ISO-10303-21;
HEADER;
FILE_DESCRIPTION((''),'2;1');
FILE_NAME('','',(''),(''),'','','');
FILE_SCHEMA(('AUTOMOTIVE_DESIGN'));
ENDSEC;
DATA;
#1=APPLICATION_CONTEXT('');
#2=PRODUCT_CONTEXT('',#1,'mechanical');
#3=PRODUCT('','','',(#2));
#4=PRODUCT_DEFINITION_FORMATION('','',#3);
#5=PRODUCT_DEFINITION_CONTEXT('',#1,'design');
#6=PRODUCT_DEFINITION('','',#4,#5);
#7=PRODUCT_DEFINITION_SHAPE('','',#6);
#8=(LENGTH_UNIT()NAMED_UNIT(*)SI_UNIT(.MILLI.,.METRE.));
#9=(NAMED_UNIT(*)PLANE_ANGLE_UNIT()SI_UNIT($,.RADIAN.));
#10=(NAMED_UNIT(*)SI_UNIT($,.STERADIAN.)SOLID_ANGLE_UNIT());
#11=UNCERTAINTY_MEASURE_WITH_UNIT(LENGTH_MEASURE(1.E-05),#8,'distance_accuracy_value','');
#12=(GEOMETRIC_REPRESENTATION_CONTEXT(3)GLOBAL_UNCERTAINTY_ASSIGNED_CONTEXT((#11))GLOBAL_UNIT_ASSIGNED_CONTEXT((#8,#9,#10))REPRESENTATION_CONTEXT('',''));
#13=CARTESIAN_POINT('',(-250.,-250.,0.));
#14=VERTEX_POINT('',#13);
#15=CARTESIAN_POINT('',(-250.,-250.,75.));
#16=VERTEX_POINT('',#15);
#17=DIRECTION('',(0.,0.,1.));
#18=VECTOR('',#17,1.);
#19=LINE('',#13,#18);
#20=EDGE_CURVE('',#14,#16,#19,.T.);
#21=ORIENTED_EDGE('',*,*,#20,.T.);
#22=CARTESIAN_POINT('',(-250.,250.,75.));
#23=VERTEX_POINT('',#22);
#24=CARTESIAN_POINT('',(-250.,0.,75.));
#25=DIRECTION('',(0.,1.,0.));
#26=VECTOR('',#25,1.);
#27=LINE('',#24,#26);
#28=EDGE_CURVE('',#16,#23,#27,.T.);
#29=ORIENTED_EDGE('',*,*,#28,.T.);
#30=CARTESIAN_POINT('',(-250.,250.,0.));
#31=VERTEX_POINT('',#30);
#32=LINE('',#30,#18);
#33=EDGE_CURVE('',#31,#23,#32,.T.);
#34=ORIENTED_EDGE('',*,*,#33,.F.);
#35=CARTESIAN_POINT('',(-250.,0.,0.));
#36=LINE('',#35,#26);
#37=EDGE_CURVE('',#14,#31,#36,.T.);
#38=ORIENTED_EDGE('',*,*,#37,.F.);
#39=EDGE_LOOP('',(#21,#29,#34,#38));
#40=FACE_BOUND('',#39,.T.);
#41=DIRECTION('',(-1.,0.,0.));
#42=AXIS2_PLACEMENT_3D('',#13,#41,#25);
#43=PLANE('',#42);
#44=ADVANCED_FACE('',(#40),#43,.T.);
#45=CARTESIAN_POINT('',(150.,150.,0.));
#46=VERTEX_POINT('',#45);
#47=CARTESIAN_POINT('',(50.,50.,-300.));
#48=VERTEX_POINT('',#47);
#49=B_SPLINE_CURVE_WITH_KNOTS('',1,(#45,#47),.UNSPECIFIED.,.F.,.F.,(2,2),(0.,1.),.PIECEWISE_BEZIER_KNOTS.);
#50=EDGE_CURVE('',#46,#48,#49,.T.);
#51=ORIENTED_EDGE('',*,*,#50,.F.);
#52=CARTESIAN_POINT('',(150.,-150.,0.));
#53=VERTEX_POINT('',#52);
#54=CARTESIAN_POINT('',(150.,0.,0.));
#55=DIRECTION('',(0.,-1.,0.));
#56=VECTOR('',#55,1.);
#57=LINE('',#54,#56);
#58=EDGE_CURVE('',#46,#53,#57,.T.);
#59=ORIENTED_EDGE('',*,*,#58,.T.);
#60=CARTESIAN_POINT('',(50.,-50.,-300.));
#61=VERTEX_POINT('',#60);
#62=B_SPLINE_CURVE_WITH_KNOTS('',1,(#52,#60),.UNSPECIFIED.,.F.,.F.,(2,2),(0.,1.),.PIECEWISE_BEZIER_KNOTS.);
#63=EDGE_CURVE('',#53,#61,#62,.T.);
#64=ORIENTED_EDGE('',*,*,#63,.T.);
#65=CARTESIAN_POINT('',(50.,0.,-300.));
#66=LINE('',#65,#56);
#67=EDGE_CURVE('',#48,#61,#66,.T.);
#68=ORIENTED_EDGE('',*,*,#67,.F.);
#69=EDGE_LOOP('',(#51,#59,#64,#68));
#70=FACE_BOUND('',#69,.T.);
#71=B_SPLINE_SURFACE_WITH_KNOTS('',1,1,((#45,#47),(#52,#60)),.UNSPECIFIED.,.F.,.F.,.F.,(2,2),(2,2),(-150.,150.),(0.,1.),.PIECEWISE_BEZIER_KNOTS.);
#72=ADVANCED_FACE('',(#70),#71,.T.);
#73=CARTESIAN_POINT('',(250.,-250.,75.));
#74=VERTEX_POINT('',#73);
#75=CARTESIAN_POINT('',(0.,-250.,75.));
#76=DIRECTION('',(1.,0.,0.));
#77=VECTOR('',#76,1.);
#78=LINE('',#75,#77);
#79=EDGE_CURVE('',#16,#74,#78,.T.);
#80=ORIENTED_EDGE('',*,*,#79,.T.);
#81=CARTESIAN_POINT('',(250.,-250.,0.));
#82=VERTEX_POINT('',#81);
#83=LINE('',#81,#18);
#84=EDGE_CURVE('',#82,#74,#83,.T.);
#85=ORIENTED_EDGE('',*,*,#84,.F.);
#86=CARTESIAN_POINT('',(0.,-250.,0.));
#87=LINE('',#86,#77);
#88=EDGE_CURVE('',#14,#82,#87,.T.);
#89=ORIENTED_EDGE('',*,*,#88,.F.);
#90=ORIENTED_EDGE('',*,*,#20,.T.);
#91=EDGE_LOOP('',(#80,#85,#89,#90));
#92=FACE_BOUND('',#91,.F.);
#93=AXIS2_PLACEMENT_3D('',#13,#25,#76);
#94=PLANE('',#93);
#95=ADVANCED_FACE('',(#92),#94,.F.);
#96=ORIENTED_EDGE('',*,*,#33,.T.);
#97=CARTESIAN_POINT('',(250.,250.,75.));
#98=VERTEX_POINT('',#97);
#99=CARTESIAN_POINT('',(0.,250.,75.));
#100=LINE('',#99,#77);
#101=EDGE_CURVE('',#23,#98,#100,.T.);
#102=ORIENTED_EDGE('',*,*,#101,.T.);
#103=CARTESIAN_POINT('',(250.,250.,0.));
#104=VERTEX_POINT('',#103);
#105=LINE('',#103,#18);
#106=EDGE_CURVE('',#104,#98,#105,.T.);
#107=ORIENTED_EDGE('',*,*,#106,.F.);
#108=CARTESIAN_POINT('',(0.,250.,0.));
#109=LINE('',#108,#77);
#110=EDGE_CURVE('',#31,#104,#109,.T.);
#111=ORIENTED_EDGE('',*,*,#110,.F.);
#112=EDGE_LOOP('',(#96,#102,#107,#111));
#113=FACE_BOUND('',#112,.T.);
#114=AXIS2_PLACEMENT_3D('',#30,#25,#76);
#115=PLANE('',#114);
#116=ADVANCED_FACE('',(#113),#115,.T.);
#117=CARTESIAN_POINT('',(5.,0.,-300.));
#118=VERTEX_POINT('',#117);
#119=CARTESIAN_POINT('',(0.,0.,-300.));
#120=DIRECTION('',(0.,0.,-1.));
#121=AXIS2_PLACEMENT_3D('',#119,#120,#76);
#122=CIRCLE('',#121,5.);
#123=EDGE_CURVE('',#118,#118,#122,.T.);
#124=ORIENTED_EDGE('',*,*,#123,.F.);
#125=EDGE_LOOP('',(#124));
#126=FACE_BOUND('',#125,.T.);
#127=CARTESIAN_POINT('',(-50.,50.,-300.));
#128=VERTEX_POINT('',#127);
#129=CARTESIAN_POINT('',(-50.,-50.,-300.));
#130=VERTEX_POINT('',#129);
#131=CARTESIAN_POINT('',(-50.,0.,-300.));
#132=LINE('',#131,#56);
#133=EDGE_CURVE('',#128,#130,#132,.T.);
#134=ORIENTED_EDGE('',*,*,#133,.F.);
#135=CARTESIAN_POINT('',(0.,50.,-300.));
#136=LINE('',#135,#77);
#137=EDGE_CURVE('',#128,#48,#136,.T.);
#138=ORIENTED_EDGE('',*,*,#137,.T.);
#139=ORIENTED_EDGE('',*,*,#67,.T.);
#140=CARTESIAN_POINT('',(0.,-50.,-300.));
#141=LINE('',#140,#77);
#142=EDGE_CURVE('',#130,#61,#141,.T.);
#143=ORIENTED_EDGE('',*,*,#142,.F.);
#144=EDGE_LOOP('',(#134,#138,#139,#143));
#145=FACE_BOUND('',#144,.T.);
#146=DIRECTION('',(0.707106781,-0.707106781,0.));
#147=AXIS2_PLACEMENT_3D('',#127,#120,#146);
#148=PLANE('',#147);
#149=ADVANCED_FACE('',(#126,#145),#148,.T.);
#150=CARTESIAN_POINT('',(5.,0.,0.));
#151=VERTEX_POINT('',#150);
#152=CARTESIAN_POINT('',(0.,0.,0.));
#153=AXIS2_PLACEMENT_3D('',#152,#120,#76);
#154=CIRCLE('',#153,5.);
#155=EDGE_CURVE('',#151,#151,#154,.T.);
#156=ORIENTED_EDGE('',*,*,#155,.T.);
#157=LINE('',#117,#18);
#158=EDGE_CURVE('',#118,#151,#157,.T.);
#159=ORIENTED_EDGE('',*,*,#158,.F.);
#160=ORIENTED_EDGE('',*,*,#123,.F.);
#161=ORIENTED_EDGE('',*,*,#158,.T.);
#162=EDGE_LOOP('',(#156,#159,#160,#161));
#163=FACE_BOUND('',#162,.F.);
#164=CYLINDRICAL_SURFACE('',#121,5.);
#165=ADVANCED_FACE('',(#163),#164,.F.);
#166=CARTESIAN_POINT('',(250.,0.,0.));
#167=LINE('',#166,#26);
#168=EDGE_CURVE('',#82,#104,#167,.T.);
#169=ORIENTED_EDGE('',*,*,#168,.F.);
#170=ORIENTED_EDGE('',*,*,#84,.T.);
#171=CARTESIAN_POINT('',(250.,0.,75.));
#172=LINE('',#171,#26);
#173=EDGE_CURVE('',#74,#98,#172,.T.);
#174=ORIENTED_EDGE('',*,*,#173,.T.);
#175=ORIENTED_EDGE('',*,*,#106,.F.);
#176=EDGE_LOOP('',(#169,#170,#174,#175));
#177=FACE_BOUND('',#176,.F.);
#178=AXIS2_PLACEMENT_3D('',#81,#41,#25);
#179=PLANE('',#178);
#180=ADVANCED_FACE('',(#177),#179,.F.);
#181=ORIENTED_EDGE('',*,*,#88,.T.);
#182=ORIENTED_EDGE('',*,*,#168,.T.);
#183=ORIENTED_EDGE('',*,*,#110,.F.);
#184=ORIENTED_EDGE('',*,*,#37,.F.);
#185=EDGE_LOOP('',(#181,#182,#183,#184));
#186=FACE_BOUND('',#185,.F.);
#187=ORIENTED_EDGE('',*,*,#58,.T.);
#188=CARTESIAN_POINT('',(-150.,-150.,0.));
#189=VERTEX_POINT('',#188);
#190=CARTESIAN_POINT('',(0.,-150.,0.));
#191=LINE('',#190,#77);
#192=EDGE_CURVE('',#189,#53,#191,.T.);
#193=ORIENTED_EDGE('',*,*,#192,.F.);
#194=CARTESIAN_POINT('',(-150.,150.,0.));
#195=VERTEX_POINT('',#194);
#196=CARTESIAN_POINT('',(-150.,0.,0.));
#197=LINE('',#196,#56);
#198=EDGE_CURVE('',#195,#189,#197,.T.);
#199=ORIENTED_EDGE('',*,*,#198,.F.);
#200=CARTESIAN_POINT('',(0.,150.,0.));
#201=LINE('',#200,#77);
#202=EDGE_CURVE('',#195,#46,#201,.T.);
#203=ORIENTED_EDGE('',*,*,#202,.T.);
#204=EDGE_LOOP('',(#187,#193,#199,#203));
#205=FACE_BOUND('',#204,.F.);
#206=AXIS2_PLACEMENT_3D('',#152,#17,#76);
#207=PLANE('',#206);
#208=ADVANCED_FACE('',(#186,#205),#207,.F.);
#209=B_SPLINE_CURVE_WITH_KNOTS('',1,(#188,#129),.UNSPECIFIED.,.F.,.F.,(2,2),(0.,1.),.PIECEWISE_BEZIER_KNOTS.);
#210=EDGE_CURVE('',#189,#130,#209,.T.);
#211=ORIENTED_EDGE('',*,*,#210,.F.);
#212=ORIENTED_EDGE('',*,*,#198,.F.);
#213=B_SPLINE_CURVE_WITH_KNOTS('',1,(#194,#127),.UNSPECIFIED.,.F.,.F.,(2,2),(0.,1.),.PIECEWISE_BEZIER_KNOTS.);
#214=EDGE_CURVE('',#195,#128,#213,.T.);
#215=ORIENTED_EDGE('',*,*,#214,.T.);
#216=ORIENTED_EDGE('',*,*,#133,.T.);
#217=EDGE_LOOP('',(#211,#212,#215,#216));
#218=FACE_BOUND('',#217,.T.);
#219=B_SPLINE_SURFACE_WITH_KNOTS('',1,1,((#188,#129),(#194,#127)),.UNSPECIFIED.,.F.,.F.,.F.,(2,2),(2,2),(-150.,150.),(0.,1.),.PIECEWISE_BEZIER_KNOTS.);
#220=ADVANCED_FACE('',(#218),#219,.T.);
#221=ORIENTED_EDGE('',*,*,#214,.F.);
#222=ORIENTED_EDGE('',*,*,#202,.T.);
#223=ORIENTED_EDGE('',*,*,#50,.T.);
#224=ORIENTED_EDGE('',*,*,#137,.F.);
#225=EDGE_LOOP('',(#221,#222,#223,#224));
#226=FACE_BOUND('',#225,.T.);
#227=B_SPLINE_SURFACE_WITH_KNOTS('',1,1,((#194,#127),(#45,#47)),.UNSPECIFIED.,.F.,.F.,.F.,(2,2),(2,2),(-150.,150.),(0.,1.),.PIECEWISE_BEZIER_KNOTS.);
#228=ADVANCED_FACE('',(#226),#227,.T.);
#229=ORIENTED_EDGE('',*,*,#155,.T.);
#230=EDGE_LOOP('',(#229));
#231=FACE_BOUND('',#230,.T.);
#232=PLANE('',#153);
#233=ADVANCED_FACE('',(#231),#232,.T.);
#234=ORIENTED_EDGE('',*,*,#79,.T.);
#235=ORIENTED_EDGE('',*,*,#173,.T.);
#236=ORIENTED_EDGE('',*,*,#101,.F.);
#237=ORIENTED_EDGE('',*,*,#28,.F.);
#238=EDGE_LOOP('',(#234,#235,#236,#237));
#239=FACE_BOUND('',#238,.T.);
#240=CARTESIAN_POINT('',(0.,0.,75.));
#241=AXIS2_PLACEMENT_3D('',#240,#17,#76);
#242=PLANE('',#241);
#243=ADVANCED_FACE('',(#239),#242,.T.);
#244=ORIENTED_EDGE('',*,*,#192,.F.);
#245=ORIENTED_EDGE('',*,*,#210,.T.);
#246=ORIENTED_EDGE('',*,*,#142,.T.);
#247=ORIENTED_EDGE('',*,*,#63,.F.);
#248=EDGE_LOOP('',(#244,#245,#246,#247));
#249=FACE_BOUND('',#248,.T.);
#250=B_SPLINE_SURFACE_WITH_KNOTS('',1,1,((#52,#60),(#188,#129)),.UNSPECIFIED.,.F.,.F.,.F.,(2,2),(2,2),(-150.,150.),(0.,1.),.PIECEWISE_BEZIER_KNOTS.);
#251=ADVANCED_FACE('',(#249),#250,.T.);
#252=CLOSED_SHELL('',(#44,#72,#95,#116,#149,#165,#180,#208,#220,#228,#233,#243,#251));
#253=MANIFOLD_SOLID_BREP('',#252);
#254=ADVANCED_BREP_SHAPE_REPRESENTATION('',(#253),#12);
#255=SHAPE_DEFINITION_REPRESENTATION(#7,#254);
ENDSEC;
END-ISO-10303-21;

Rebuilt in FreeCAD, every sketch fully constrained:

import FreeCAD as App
import Part
import Sketcher

V = App.Vector
Q = App.Units.Quantity


def add_polygon(sketch, points):
    """Adds a closed chain of lines whose ends are joined by coincident constraints."""
    first, n = sketch.GeometryCount, len(points)
    for a, b in zip(points, points[1:] + points[:1]):
        sketch.addGeometry(Part.LineSegment(App.Vector(*a, 0), App.Vector(*b, 0)), False)
    for i in range(n):
        sketch.addConstraint(Sketcher.Constraint("Coincident", first + i, 2, first + (i + 1) % n, 1))

doc = App.newDocument("Part")
body = doc.addObject("PartDesign::Body", "Body")

# Sketch on XY plane
sketch1 = doc.addObject("Sketcher::SketchObject", "Sketch")
body.addObject(sketch1)
sketch1.AttachmentSupport = (doc.XY_Plane, [""])
sketch1.MapMode = "FlatFace"
add_polygon(sketch1, [(-250, 250), (-250, -250), (250, -250), (250, 250)])  # lines 0-3
sketch1.addConstraint([
    Sketcher.Constraint("Vertical", 0),
    Sketcher.Constraint("Horizontal", 1),
    Sketcher.Constraint("Vertical", 2),
    Sketcher.Constraint("Horizontal", 3),
    Sketcher.Constraint("Symmetric", 0, 2, 2, 2, -1, 1),
    Sketcher.Constraint("Equal", 3, 0),
    Sketcher.Constraint("DistanceX", 1, 1, 1, 2, Q("500 mm")),
])
pad1 = doc.addObject("PartDesign::Pad", "Pad")
body.addObject(pad1)
pad1.Profile = sketch1
pad1.Length = 75

# Sketch on XY plane
sketch2 = doc.addObject("Sketcher::SketchObject", "Sketch001")
body.addObject(sketch2)
sketch2.AttachmentSupport = (doc.XY_Plane, [""])
sketch2.MapMode = "FlatFace"
add_polygon(sketch2, [(-150, -150), (-150, 150), (150, 150), (150, -150)])  # lines 0-3
sketch2.addConstraint([
    Sketcher.Constraint("Vertical", 0),
    Sketcher.Constraint("Horizontal", 1),
    Sketcher.Constraint("Vertical", 2),
    Sketcher.Constraint("Horizontal", 3),
    Sketcher.Constraint("Symmetric", 0, 2, 2, 2, -1, 1),
    Sketcher.Constraint("Equal", 3, 0),
    Sketcher.Constraint("DistanceX", 1, 1, 1, 2, Q("300 mm")),
])

# Sketch on XY plane
sketch3 = doc.addObject("Sketcher::SketchObject", "Sketch002")
body.addObject(sketch3)
sketch3.AttachmentSupport = (doc.XY_Plane, [""])
sketch3.MapMode = "FlatFace"
sketch3.AttachmentOffset = App.Placement(V(0, 0, -300), App.Rotation())
add_polygon(sketch3, [(-50, -50), (-50, 50), (50, 50), (50, -50)])  # lines 0-3
sketch3.addConstraint([
    Sketcher.Constraint("Vertical", 0),
    Sketcher.Constraint("Horizontal", 1),
    Sketcher.Constraint("Vertical", 2),
    Sketcher.Constraint("Horizontal", 3),
    Sketcher.Constraint("Symmetric", 0, 2, 2, 2, -1, 1),
    Sketcher.Constraint("Equal", 3, 0),
    Sketcher.Constraint("DistanceX", 1, 1, 1, 2, Q("100 mm")),
])

additiveloft = doc.addObject("PartDesign::AdditiveLoft", "AdditiveLoft")
body.addObject(additiveloft)
additiveloft.Profile = sketch2
additiveloft.Sections = [sketch3]

# Sketch on XY plane
sketch4 = doc.addObject("Sketcher::SketchObject", "Sketch003")
body.addObject(sketch4)
sketch4.AttachmentSupport = (doc.XY_Plane, [""])
sketch4.MapMode = "FlatFace"
sketch4.AttachmentOffset = App.Placement(V(0, 0, -300), App.Rotation())
sketch4.addGeometry(Part.Circle(V(0, 0, 0), V(0, 0, 1), 5), False)
sketch4.addConstraint([
    Sketcher.Constraint("Coincident", 0, 3, -1, 1),
    Sketcher.Constraint("Diameter", 0, Q("10 mm")),
])
pocket1 = doc.addObject("PartDesign::Pocket", "Pocket")
body.addObject(pocket1)
pocket1.Profile = sketch4
pocket1.Length = 300
pocket1.Reversed = True

doc.recompute()
